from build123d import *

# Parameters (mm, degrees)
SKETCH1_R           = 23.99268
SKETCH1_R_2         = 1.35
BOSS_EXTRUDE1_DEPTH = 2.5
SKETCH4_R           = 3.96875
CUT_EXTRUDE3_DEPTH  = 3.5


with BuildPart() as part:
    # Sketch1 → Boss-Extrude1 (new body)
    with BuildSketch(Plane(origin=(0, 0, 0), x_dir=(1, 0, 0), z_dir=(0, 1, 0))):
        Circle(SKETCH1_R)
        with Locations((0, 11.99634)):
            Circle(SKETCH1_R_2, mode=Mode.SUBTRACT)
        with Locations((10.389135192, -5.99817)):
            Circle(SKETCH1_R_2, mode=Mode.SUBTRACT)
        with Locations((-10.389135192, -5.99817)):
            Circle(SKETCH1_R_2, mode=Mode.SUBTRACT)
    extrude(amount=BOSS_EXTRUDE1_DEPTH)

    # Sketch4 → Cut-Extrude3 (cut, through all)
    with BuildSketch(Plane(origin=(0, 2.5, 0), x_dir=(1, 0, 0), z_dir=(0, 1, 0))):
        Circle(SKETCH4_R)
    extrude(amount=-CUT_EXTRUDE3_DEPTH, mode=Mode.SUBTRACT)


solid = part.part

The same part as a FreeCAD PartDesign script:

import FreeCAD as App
import Part
import Sketcher

V = App.Vector
Q = App.Units.Quantity

doc = App.newDocument("Part")
body = doc.addObject("PartDesign::Body", "Body")

sketch1 = body.newObject("Sketcher::SketchObject", "Sketch")
sketch1.AttachmentSupport = (doc.getObject("XZ_Plane"), [""])
sketch1.MapMode = "FlatFace"
sketch1.addGeometry(Part.Circle(V(0, 0, 0), V(0, 0, 1), 24), False)
sketch1.addGeometry(Part.Circle(V(-10.4, 6, 0), V(0, 0, 1), 1.4), False)
sketch1.addGeometry(Part.Circle(V(10.4, 6, 0), V(0, 0, 1), 1.4), False)
sketch1.addGeometry(Part.Circle(V(0, -12, 0), V(0, 0, 1), 1.4), False)
sketch1.addConstraint(Sketcher.Constraint("Coincident", 0, 3, -1, 1))
sketch1.addConstraint(Sketcher.Constraint("Equal", 1, 2))
sketch1.addConstraint(Sketcher.Constraint("Equal", 2, 3))
sketch1.addConstraint(Sketcher.Constraint("Symmetric", 1, 3, 2, 3, -2))
sketch1.addConstraint(Sketcher.Constraint("PointOnObject", 3, 3, -2))
sketch1.addConstraint(Sketcher.Constraint("Diameter", 1, Q("2.7 mm")))
sketch1.addConstraint(Sketcher.Constraint("Diameter", 0, Q("47.98536 mm")))
sketch1.addConstraint(Sketcher.Constraint("DistanceY", -1, 1, 1, 3, Q("5.99817 mm")))
sketch1.addConstraint(Sketcher.Constraint("DistanceY", 3, 3, -1, 1, Q("11.99634 mm")))
sketch1.addConstraint(Sketcher.Constraint("DistanceX", 1, 3, 2, 3, Q("20.77827 mm")))
pad1 = body.newObject("PartDesign::Pad", "Pad")
pad1.Profile = sketch1
pad1.Length = 2.5
pad1.Reversed = True

sketch2 = body.newObject("Sketcher::SketchObject", "Sketch001")
sketch2.AttachmentSupport = (doc.getObject("XZ_Plane"), [""])
sketch2.MapMode = "FlatFace"
sketch2.AttachmentOffset = App.Placement(V(0, 0, -2.5), App.Rotation())
sketch2.addGeometry(Part.Circle(V(0, 0, 0), V(0, 0, 1), 4), False)
sketch2.addConstraint(Sketcher.Constraint("Coincident", 0, 3, -1, 1))
sketch2.addConstraint(Sketcher.Constraint("Diameter", 0, Q("7.9375 mm")))
pocket1 = body.newObject("PartDesign::Pocket", "Pocket")
pocket1.Profile = sketch2
pocket1.Type = "ThroughAll"
pocket1.Reversed = True

doc.recompute()
